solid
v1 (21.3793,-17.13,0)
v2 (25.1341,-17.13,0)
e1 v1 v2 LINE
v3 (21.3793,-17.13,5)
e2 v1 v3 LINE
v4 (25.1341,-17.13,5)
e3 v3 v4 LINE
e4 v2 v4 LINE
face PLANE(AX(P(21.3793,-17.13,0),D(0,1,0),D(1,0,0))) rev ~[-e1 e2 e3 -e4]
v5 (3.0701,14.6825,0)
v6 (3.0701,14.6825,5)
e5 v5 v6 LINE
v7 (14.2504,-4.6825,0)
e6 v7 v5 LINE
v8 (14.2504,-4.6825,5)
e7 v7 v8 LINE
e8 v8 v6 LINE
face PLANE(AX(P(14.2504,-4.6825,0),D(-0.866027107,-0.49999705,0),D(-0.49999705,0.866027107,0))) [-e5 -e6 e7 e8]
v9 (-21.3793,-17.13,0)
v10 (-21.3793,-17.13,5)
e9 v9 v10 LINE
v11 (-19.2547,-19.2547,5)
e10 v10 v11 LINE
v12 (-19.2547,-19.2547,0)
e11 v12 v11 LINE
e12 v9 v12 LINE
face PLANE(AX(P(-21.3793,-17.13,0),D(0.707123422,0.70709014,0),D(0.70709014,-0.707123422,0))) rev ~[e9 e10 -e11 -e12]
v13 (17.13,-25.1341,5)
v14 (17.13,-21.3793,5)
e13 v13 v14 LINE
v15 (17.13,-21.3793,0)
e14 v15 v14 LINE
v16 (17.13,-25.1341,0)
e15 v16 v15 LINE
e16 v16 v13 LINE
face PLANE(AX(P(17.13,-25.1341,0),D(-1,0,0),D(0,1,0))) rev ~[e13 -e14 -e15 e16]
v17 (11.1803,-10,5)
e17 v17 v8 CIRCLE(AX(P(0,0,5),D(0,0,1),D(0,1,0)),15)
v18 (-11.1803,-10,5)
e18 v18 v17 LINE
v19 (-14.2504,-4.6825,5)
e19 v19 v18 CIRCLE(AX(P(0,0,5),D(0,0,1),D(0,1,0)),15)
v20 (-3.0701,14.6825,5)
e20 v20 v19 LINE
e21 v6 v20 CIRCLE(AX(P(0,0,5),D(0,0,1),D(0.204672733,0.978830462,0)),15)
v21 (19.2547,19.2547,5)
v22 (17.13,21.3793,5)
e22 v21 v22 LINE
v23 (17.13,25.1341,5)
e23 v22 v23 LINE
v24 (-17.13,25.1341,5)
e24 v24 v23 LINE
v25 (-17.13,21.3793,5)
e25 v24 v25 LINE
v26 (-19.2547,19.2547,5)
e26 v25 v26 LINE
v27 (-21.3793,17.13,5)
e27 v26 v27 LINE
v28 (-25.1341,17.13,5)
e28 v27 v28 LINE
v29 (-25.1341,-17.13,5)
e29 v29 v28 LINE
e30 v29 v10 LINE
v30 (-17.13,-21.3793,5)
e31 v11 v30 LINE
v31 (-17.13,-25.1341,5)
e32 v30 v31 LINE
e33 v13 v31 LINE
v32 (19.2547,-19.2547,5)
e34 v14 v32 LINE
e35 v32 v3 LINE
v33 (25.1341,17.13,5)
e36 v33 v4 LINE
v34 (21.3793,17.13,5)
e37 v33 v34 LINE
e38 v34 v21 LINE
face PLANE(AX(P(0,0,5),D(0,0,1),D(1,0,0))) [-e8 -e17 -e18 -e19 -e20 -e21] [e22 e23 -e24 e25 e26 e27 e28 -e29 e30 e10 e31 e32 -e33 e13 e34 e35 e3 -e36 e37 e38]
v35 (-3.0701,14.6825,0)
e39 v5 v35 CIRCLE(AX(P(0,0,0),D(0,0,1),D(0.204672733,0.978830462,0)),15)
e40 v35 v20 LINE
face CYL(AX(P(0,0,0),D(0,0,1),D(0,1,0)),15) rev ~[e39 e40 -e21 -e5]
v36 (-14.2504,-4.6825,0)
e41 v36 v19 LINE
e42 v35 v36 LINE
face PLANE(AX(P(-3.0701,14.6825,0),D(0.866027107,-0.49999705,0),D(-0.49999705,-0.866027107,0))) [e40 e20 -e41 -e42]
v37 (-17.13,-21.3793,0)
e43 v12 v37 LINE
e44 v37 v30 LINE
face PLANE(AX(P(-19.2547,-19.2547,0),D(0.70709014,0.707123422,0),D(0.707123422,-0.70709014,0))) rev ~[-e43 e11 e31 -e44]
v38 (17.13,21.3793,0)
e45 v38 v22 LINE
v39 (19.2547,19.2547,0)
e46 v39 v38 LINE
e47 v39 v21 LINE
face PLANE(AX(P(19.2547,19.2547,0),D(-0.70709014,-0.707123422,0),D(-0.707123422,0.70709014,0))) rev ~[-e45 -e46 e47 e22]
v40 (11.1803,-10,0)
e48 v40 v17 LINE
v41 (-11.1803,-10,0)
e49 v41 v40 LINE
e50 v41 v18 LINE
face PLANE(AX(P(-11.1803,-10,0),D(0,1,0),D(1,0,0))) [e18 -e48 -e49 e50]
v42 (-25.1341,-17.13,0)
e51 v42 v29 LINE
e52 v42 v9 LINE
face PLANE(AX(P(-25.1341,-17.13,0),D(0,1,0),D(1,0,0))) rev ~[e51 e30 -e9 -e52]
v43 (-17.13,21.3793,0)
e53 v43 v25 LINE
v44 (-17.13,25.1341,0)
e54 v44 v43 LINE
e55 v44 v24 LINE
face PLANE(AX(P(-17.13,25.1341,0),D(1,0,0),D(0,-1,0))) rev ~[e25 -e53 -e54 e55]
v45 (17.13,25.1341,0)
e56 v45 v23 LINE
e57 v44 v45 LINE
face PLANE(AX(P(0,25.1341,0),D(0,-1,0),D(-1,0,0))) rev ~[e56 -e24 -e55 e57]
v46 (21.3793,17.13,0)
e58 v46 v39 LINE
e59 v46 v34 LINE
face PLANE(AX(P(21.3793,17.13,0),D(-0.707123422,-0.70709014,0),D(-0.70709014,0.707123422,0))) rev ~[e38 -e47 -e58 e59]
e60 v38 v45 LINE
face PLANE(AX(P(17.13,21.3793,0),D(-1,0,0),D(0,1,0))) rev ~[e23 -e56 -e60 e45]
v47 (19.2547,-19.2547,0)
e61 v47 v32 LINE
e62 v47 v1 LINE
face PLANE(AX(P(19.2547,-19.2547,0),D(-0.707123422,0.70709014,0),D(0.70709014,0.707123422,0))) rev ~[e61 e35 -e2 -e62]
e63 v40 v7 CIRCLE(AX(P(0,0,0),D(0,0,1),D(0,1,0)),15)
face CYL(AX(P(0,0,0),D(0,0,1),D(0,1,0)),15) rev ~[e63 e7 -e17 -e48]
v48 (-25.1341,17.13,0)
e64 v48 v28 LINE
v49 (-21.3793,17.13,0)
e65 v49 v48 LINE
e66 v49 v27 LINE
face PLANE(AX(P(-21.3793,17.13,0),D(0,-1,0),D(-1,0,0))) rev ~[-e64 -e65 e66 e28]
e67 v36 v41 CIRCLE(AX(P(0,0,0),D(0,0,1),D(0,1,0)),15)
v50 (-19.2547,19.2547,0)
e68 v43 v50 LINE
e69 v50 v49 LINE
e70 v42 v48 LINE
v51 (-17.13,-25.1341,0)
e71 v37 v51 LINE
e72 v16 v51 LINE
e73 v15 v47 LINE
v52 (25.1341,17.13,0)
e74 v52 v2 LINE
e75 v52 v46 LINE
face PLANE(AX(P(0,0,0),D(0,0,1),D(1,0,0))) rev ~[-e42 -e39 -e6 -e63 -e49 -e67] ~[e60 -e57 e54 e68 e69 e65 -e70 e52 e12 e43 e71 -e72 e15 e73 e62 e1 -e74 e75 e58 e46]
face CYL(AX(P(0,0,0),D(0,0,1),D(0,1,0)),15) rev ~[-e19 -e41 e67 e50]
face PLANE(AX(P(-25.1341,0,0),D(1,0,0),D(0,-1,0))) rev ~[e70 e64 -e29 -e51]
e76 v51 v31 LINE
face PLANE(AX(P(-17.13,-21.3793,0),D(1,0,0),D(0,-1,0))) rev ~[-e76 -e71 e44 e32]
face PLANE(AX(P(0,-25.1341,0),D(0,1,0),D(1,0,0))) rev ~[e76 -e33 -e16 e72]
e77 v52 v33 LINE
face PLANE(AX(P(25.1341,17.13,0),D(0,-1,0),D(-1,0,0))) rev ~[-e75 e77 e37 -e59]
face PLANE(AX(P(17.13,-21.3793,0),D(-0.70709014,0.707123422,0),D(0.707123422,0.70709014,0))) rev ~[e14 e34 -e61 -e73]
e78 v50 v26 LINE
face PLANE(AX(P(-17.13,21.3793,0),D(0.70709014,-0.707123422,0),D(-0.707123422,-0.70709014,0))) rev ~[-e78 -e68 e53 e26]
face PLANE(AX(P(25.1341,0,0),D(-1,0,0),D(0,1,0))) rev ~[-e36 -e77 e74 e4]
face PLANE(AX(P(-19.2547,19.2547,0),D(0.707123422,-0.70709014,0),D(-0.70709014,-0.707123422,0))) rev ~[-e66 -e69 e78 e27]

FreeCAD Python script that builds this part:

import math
import FreeCAD as App
import Part
import Sketcher
Q = App.Units.Quantity

doc = App.newDocument("Part")
body = doc.addObject("PartDesign::Body", "Body")

# Sketch on XY plane
sketch1 = body.newObject("Sketcher::SketchObject", "Sketch")
sketch1.AttachmentSupport = (doc.getObject("XY_Plane"), [""])
sketch1.MapMode = "FlatFace"
sketch1.addGeometry([
    Part.LineSegment(App.Vector(17.1, 21.4, 0), App.Vector(17.1, 25.1, 0)),  # 0
    Part.LineSegment(App.Vector(17.1, 25.1, 0), App.Vector(-17.1, 25.1, 0)),  # 1
    Part.LineSegment(App.Vector(-17.1, 25.1, 0), App.Vector(-17.1, 21.4, 0)),  # 2
    Part.LineSegment(App.Vector(-17.1, 21.4, 0), App.Vector(-19.3, 19.3, 0)),  # 3
    Part.LineSegment(App.Vector(-19.3, 19.3, 0), App.Vector(-21.4, 17.1, 0)),  # 4
    Part.LineSegment(App.Vector(-21.4, 17.1, 0), App.Vector(-25.1, 17.1, 0)),  # 5
    Part.LineSegment(App.Vector(-25.1, 17.1, 0), App.Vector(-25.1, -17.1, 0)),  # 6
    Part.LineSegment(App.Vector(-25.1, -17.1, 0), App.Vector(-21.4, -17.1, 0)),  # 7
    Part.LineSegment(App.Vector(-21.4, -17.1, 0), App.Vector(-19.3, -19.3, 0)),  # 8
    Part.LineSegment(App.Vector(-19.3, -19.3, 0), App.Vector(-17.1, -21.4, 0)),  # 9
    Part.LineSegment(App.Vector(-17.1, -21.4, 0), App.Vector(-17.1, -25.1, 0)),  # 10
    Part.LineSegment(App.Vector(-17.1, -25.1, 0), App.Vector(17.1, -25.1, 0)),  # 11
    Part.LineSegment(App.Vector(17.1, -25.1, 0), App.Vector(17.1, -21.4, 0)),  # 12
    Part.LineSegment(App.Vector(17.1, -21.4, 0), App.Vector(19.3, -19.3, 0)),  # 13
    Part.LineSegment(App.Vector(19.3, -19.3, 0), App.Vector(21.4, -17.1, 0)),  # 14
    Part.LineSegment(App.Vector(21.4, -17.1, 0), App.Vector(25.1, -17.1, 0)),  # 15
    Part.LineSegment(App.Vector(25.1, -17.1, 0), App.Vector(25.1, 17.1, 0)),  # 16
    Part.LineSegment(App.Vector(25.1, 17.1, 0), App.Vector(21.4, 17.1, 0)),  # 17
    Part.LineSegment(App.Vector(21.4, 17.1, 0), App.Vector(19.3, 19.3, 0)),  # 18
    Part.LineSegment(App.Vector(19.3, 19.3, 0), App.Vector(17.1, 21.4, 0)),  # 19
], False)
sketch1.addConstraint([
    Sketcher.Constraint("Coincident", 0, 2, 1, 1),
    Sketcher.Constraint("Coincident", 1, 2, 2, 1),
    Sketcher.Constraint("Coincident", 2, 2, 3, 1),
    Sketcher.Constraint("Coincident", 3, 2, 4, 1),
    Sketcher.Constraint("Coincident", 4, 2, 5, 1),
    Sketcher.Constraint("Coincident", 5, 2, 6, 1),
    Sketcher.Constraint("Coincident", 6, 2, 7, 1),
    Sketcher.Constraint("Coincident", 7, 2, 8, 1),
    Sketcher.Constraint("Coincident", 8, 2, 9, 1),
    Sketcher.Constraint("Coincident", 9, 2, 10, 1),
    Sketcher.Constraint("Coincident", 10, 2, 11, 1),
    Sketcher.Constraint("Coincident", 11, 2, 12, 1),
    Sketcher.Constraint("Coincident", 12, 2, 13, 1),
    Sketcher.Constraint("Coincident", 13, 2, 14, 1),
    Sketcher.Constraint("Coincident", 14, 2, 15, 1),
    Sketcher.Constraint("Coincident", 15, 2, 16, 1),
    Sketcher.Constraint("Coincident", 16, 2, 17, 1),
    Sketcher.Constraint("Coincident", 17, 2, 18, 1),
    Sketcher.Constraint("Coincident", 18, 2, 19, 1),
    Sketcher.Constraint("Coincident", 19, 2, 0, 1),
    Sketcher.Constraint("Vertical", 0),
    Sketcher.Constraint("Horizontal", 1),
    Sketcher.Constraint("Vertical", 2),
    Sketcher.Constraint("Horizontal", 5),
    Sketcher.Constraint("Vertical", 6),
    Sketcher.Constraint("Horizontal", 7),
    Sketcher.Constraint("Vertical", 10),
    Sketcher.Constraint("Horizontal", 11),
    Sketcher.Constraint("Vertical", 12),
    Sketcher.Constraint("Horizontal", 15),
    Sketcher.Constraint("Vertical", 16),
    Sketcher.Constraint("Horizontal", 17),
    Sketcher.Constraint("Symmetric", 0, 2, 10, 2, -1, 1),
    Sketcher.Constraint("Symmetric", 2, 2, 12, 2, -1, 1),
    Sketcher.Constraint("Symmetric", 3, 2, 13, 2, -1, 1),
    Sketcher.Constraint("Symmetric", 4, 2, 14, 2, -1, 1),
    Sketcher.Constraint("Symmetric", 6, 2, 16, 2, -1, 1),
    Sketcher.Constraint("Symmetric", 8, 2, 18, 2, -1, 1),
    Sketcher.Constraint("Symmetric", 9, 2, 12, 2, -2),
    Sketcher.Constraint("Symmetric", 8, 2, 13, 2, -2),
    Sketcher.Constraint("Symmetric", 7, 2, 14, 2, -2),
    Sketcher.Constraint("Parallel", 3, 4),
    Sketcher.Constraint("Perpendicular", 4, 8),
    Sketcher.Constraint("Perpendicular", 14, 18),
    Sketcher.Constraint("Parallel", 18, 19),
    Sketcher.Constraint("Equal", 17, 0),
    Sketcher.Constraint("Equal", 11, 6),
    Sketcher.Constraint("Equal", 3, 4),
    Sketcher.Constraint("DistanceX", 1, 2, 1, 1, 34.26),
    Sketcher.Constraint("DistanceX", 5, 2, 5, 1, 3.7548),
    Sketcher.Constraint("DistanceY", -1, 1, 0, 2, 25.134),
])
pad1 = body.newObject("PartDesign::Pad", "Pad")
pad1.Profile = sketch1
pad1.Length = 5

# Sketch on XY plane
sketch2 = body.newObject("Sketcher::SketchObject", "Sketch001")
sketch2.AttachmentSupport = (doc.getObject("XY_Plane"), [""])
sketch2.MapMode = "FlatFace"
sketch2.addGeometry(Part.Circle(App.Vector(0, 0, 0), App.Vector(0, 0, 1), 15), False)
sketch2.addConstraint([
    Sketcher.Constraint("Coincident", 0, 3, -1, 1),
    Sketcher.Constraint("Diameter", 0, 30.0),
])
doc.recompute()
hole = body.newObject("PartDesign::Hole", "Hole")
hole.Profile = sketch2
hole.ThreadType = "None"
hole.Diameter = 30
hole.DepthType = "ThroughAll"
hole.Reversed = True

# Sketch on XY plane
sketch3 = body.newObject("Sketcher::SketchObject", "Sketch002")
sketch3.AttachmentSupport = (doc.getObject("XY_Plane"), [""])
sketch3.MapMode = "FlatFace"
sketch3.addGeometry([
    Part.ArcOfCircle(Part.Circle(App.Vector(0, 0, 0), App.Vector(0, 0, 1), 15), math.radians(102), math.radians(198)),  # 0
    Part.LineSegment(App.Vector(-14, -5, 0), App.Vector(-3, 15, 0)),  # 1
    Part.LineSegment(App.Vector(14, -5, 0), App.Vector(3, 15, 0)),  # 2
    Part.ArcOfCircle(Part.Circle(App.Vector(0, 0, 0), App.Vector(0, 0, 1), 15), math.radians(-18), math.radians(78)),  # 3
    Part.ArcOfCircle(Part.Circle(App.Vector(0, 0, 0), App.Vector(0, 0, 1), 15), math.radians(-138), math.radians(-42)),  # 4
    Part.LineSegment(App.Vector(11, -10, 0), App.Vector(-11, -10, 0)),  # 5
], False)
sketch3.addConstraint([
    Sketcher.Constraint("Coincident", 0, 1, 1, 2),
    Sketcher.Constraint("Coincident", 1, 1, 0, 2),
    Sketcher.Constraint("Coincident", 2, 1, 3, 1),
    Sketcher.Constraint("Coincident", 3, 2, 2, 2),
    Sketcher.Constraint("Coincident", 4, 1, 5, 2),
    Sketcher.Constraint("Coincident", 5, 1, 4, 2),
    Sketcher.Constraint("Horizontal", 5),
    Sketcher.Constraint("Coincident", 0, 3, -1, 1),
    Sketcher.Constraint("Coincident", 3, 3, -1, 1),
    Sketcher.Constraint("Coincident", 4, 3, -1, 1),
    Sketcher.Constraint("Equal", 0, 3),
    Sketcher.Constraint("Equal", 3, 4),
    Sketcher.Constraint("Horizontal", 1, 1, 2, 1),
    Sketcher.Constraint("Horizontal", 0, 1, 3, 2),
    Sketcher.Constraint("Radius", 0, 15.0),
    Sketcher.Constraint("Angle", 1, Q("60.0002 deg")),
    Sketcher.Constraint("DistanceY", 4, 1, -1, 1, 10.0),
    Sketcher.Constraint("DistanceX", 0, 1, -1, 1, 3.07),
])
pad2 = body.newObject("PartDesign::Pad", "Pad001")
pad2.Profile = sketch3
pad2.Length = 5

doc.recompute()
